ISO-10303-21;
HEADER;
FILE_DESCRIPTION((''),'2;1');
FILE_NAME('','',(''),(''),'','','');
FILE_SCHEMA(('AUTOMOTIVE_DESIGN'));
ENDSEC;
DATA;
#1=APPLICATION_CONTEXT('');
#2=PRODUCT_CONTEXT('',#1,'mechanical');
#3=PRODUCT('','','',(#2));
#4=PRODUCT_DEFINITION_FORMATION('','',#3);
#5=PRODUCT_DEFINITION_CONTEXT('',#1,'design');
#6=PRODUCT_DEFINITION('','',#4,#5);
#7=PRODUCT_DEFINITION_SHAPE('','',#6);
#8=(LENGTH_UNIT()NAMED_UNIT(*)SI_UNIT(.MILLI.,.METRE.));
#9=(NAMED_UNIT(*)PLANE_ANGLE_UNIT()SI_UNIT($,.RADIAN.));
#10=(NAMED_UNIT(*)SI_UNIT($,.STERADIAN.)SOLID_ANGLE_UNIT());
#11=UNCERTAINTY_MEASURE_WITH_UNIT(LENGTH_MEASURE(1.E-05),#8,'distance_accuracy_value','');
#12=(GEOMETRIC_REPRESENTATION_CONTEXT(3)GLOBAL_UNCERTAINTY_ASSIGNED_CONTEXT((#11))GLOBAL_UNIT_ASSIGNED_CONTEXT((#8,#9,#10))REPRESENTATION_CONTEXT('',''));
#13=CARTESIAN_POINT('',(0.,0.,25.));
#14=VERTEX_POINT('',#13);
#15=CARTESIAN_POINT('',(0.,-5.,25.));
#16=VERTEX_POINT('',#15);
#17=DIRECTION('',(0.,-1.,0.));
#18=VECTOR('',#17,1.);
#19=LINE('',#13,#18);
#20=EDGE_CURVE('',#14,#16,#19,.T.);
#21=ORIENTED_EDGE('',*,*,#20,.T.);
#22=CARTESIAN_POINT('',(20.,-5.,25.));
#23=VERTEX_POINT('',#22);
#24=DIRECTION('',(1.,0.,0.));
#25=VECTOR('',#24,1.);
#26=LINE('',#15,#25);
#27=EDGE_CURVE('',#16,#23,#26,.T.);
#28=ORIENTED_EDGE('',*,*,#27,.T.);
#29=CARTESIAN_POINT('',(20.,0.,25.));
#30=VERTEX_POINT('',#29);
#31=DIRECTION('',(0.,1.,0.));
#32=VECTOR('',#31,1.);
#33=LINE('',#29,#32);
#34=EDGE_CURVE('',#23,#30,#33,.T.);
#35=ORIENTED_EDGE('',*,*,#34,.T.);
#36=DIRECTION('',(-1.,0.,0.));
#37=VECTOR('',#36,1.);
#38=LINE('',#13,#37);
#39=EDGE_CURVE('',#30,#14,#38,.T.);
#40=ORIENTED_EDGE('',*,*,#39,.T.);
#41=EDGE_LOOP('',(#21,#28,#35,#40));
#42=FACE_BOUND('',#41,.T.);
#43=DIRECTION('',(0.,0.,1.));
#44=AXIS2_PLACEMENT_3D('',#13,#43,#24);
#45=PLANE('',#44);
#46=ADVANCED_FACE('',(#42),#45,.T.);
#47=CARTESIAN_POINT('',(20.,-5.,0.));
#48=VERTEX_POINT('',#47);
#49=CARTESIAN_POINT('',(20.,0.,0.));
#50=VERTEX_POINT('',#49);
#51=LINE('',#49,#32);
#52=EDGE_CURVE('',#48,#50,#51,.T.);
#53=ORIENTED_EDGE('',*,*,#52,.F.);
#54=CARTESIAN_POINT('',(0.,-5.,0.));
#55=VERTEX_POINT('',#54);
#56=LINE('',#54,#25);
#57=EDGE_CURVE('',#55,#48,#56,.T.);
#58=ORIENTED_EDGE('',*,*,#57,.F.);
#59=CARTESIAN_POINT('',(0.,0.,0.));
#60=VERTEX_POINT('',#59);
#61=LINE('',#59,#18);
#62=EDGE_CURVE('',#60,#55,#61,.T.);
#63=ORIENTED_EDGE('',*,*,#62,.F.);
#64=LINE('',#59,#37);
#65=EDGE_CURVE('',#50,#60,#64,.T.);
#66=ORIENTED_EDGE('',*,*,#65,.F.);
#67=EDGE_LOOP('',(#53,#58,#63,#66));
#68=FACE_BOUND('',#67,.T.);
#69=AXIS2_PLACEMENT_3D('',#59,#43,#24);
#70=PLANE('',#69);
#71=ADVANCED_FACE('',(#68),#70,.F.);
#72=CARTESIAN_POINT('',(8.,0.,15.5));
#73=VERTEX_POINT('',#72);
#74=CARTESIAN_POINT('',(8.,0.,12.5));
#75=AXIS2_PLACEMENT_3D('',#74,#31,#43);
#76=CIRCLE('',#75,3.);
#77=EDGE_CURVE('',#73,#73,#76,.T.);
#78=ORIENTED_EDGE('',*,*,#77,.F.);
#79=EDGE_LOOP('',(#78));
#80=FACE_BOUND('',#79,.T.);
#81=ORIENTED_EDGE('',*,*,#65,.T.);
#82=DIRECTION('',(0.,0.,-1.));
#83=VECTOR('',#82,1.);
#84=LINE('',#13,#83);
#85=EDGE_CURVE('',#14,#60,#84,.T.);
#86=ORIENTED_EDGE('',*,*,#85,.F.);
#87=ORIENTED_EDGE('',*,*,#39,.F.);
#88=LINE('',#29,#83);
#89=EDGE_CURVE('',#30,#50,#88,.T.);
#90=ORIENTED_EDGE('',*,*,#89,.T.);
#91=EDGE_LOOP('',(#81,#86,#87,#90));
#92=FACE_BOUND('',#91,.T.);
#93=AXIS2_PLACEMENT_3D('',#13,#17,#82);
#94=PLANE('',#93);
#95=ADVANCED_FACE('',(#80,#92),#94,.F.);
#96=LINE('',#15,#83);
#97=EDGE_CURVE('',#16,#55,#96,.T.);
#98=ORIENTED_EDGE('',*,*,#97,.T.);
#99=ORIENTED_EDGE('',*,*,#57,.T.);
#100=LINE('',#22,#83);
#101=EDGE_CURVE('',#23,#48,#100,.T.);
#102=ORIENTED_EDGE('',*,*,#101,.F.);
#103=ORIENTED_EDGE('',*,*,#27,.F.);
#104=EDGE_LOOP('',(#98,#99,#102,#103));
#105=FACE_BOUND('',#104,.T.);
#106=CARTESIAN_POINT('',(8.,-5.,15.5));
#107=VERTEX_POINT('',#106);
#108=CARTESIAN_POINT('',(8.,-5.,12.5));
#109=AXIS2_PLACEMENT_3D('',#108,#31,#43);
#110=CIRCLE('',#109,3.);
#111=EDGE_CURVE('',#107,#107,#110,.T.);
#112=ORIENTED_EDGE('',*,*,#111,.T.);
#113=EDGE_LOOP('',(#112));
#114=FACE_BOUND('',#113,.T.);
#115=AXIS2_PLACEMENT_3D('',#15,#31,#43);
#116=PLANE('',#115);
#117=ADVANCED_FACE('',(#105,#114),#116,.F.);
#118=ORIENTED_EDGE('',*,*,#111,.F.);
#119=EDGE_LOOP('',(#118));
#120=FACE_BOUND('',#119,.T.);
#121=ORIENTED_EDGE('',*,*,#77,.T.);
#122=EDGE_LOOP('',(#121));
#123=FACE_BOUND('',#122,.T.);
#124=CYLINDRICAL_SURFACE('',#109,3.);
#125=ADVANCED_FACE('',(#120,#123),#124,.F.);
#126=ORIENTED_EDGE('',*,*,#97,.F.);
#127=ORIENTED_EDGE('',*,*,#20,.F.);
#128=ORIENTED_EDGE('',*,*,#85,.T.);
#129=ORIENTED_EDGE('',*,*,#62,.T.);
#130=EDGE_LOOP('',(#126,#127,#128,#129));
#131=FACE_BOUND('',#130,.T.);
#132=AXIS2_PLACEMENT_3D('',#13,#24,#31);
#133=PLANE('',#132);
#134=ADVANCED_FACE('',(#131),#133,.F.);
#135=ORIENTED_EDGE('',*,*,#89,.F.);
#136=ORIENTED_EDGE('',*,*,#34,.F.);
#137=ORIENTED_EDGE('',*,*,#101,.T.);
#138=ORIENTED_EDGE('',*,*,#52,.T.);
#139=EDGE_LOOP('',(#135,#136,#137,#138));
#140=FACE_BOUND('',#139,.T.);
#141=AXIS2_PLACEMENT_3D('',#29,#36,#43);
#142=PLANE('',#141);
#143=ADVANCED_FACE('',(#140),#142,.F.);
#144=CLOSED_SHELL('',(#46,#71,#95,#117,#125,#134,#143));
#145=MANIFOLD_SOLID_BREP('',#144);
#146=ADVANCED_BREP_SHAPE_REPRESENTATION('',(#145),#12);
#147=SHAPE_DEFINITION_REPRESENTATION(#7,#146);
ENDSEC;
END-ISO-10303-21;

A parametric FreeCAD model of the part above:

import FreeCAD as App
import Part
import Sketcher

V = App.Vector
Q = App.Units.Quantity

doc = App.newDocument("Part")
params = doc.addObject("Spreadsheet::Sheet", "Params")
for row, (alias, value) in enumerate([
    ("sketch1_width", "20 mm"),
    ("sketch1_height", "5 mm"),
    ("pad1_length", "25 mm"),
    ("sketch2_diameter", "6 mm"),
], start=1):
    params.set(f"A{row}", alias)
    params.set(f"B{row}", "=" + value)
    params.setAlias(f"B{row}", alias)

body = doc.addObject("PartDesign::Body", "Body")

sketch1 = body.newObject("Sketcher::SketchObject", "Sketch")
sketch1.AttachmentSupport = (doc.getObject("XY_Plane"), [""])
sketch1.MapMode = "FlatFace"
sketch1.addGeometry(Part.LineSegment(V(0, 0, 0), V(0, -5, 0)), False)
sketch1.addGeometry(Part.LineSegment(V(0, -5, 0), V(20, -5, 0)), False)
sketch1.addGeometry(Part.LineSegment(V(20, -5, 0), V(20, 0, 0)), False)
sketch1.addGeometry(Part.LineSegment(V(20, 0, 0), V(0, 0, 0)), False)
sketch1.addConstraint(Sketcher.Constraint("Coincident", 0, 2, 1, 1))
sketch1.addConstraint(Sketcher.Constraint("Coincident", 1, 2, 2, 1))
sketch1.addConstraint(Sketcher.Constraint("Coincident", 2, 2, 3, 1))
sketch1.addConstraint(Sketcher.Constraint("Coincident", 3, 2, 0, 1))
sketch1.addConstraint(Sketcher.Constraint("Vertical", 0))
sketch1.addConstraint(Sketcher.Constraint("Horizontal", 1))
sketch1.addConstraint(Sketcher.Constraint("Vertical", 2))
sketch1.addConstraint(Sketcher.Constraint("Horizontal", 3))
sketch1.addConstraint(Sketcher.Constraint("Coincident", 3, 2, -1, 1))
sketch1.addConstraint(Sketcher.Constraint("DistanceX", 1, 1, 1, 2, Q("20 mm")))
sketch1.addConstraint(Sketcher.Constraint("DistanceY", 0, 2, 0, 1, Q("5 mm")))
sketch1.setExpression("Constraints[9]", "Params.sketch1_width")
sketch1.setExpression("Constraints[10]", "Params.sketch1_height")
pad1 = body.newObject("PartDesign::Pad", "Pad")
pad1.Profile = sketch1
pad1.setExpression("Length", "Params.pad1_length")

sketch2 = body.newObject("Sketcher::SketchObject", "Sketch001")
sketch2.AttachmentSupport = (doc.getObject("XZ_Plane"), [""])
sketch2.MapMode = "FlatFace"
sketch2.addGeometry(Part.Circle(V(8, 12.5, 0), V(0, 0, 1), 3), False)
sketch2.addConstraint(Sketcher.Constraint("Diameter", 0, Q("6 mm")))
sketch2.addConstraint(Sketcher.Constraint("DistanceX", -1, 1, 0, 3, Q("8 mm")))
sketch2.addConstraint(Sketcher.Constraint("DistanceY", -1, 1, 0, 3, Q("12.5 mm")))
sketch2.setExpression("Constraints[0]", "Params.sketch2_diameter")
pocket1 = body.newObject("PartDesign::Pocket", "Pocket")
pocket1.Profile = sketch2
pocket1.Type = "ThroughAll"
pocket1.Reversed = True

doc.recompute()
